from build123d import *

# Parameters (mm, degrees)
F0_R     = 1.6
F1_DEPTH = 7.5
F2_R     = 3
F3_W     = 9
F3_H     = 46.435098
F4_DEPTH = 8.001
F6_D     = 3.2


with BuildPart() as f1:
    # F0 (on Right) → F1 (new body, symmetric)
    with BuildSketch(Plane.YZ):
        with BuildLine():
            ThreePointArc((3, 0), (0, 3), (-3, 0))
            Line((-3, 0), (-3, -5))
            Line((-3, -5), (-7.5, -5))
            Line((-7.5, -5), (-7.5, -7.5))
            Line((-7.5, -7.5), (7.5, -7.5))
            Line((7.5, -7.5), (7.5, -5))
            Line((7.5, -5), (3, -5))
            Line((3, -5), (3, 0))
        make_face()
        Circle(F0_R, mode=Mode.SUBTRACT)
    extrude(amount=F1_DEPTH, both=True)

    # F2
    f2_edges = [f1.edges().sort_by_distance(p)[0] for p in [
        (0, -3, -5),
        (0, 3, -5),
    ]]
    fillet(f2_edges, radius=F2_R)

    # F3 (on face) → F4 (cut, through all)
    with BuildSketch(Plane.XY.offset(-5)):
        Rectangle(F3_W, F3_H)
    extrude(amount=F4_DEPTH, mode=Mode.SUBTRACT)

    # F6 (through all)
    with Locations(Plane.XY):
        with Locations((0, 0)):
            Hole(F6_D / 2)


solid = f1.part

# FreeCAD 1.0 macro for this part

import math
import FreeCAD as App
import Part
import Sketcher

V = App.Vector


def edges_at(feature, points):
    """Names of the edges that pass closest to the given points."""
    edges = feature.Shape.Edges
    near = lambda p: min(range(len(edges)), key=lambda i: edges[i].distToShape(Part.Vertex(*p))[0])
    return sorted({f"Edge{near(p) + 1}" for p in points})


def add_polygon(sketch, points):
    """Adds a closed chain of lines whose ends are joined by coincident constraints."""
    first, n = sketch.GeometryCount, len(points)
    for a, b in zip(points, points[1:] + points[:1]):
        sketch.addGeometry(Part.LineSegment(App.Vector(*a, 0), App.Vector(*b, 0)), False)
    for i in range(n):
        sketch.addConstraint(Sketcher.Constraint("Coincident", first + i, 2, first + (i + 1) % n, 1))

doc = App.newDocument("Part")
body = doc.addObject("PartDesign::Body", "Body")

sketch1 = doc.addObject("Sketcher::SketchObject", "Sketch")
body.addObject(sketch1)
sketch1.AttachmentSupport = (doc.YZ_Plane, [""])
sketch1.MapMode = "FlatFace"
sketch1.addGeometry(Part.ArcOfCircle(Part.Circle(V(0, 0, 0), V(0, 0, 1), 3), math.radians(0), math.radians(180)), False)
sketch1.addGeometry(Part.LineSegment(V(-3, 0, 0), V(-3, -5, 0)), False)
sketch1.addGeometry(Part.LineSegment(V(-3, -5, 0), V(-7.5, -5, 0)), False)
sketch1.addGeometry(Part.LineSegment(V(-7.5, -5, 0), V(-7.5, -7.5, 0)), False)
sketch1.addGeometry(Part.LineSegment(V(-7.5, -7.5, 0), V(7.5, -7.5, 0)), False)
sketch1.addGeometry(Part.LineSegment(V(7.5, -7.5, 0), V(7.5, -5, 0)), False)
sketch1.addGeometry(Part.LineSegment(V(7.5, -5, 0), V(3, -5, 0)), False)
sketch1.addGeometry(Part.LineSegment(V(3, -5, 0), V(3, 0, 0)), False)
sketch1.addGeometry(Part.Circle(V(0, 0, 0), V(0, 0, 1), 1.6), False)
sketch1.addConstraint(Sketcher.Constraint("Tangent", 0, 2, 1, 1))
sketch1.addConstraint(Sketcher.Constraint("Coincident", 1, 2, 2, 1))
sketch1.addConstraint(Sketcher.Constraint("Coincident", 2, 2, 3, 1))
sketch1.addConstraint(Sketcher.Constraint("Coincident", 3, 2, 4, 1))
sketch1.addConstraint(Sketcher.Constraint("Coincident", 4, 2, 5, 1))
sketch1.addConstraint(Sketcher.Constraint("Coincident", 5, 2, 6, 1))
sketch1.addConstraint(Sketcher.Constraint("Coincident", 6, 2, 7, 1))
sketch1.addConstraint(Sketcher.Constraint("Tangent", 7, 2, 0, 1))
sketch1.addConstraint(Sketcher.Constraint("Vertical", 1))
sketch1.addConstraint(Sketcher.Constraint("Horizontal", 2))
sketch1.addConstraint(Sketcher.Constraint("Vertical", 3))
sketch1.addConstraint(Sketcher.Constraint("Horizontal", 4))
sketch1.addConstraint(Sketcher.Constraint("Vertical", 5))
sketch1.addConstraint(Sketcher.Constraint("Horizontal", 6))
sketch1.addConstraint(Sketcher.Constraint("Vertical", 7))
sketch1.addConstraint(Sketcher.Constraint("Coincident", 0, 3, -1, 1))
sketch1.addConstraint(Sketcher.Constraint("Coincident", 8, 3, -1, 1))
sketch1.addConstraint(Sketcher.Constraint("Symmetric", 2, 2, 5, 2, -2))
sketch1.addConstraint(Sketcher.Constraint("Radius", 0, 3.0))
sketch1.addConstraint(Sketcher.Constraint("Diameter", 8, 3.2))
sketch1.addConstraint(Sketcher.Constraint("DistanceX", 4, 1, 4, 2, 15.0))
sketch1.addConstraint(Sketcher.Constraint("DistanceY", 1, 2, 1, 1, 5.0))
sketch1.addConstraint(Sketcher.Constraint("DistanceY", 3, 2, 3, 1, 2.5))
pad1 = doc.addObject("PartDesign::Pad", "Pad")
body.addObject(pad1)
pad1.Profile = sketch1
pad1.Length = 15
pad1.Midplane = True
doc.recompute()

fillet = doc.addObject("PartDesign::Fillet", "Fillet")
body.addObject(fillet)
fillet.Base = (pad1, edges_at(pad1, [(0, -3, -5), (0, 3, -5)]))
fillet.Radius = 3

sketch2 = doc.addObject("Sketcher::SketchObject", "Sketch001")
body.addObject(sketch2)
sketch2.AttachmentSupport = (doc.XY_Plane, [""])
sketch2.MapMode = "FlatFace"
sketch2.AttachmentOffset = App.Placement(V(0, 0, -5), App.Rotation())
add_polygon(sketch2, [(-4.5, 23.217549), (-4.5, -23.217549), (4.5, -23.217549), (4.5, 23.217549)])
sketch2.addConstraint(Sketcher.Constraint("Vertical", 0))
sketch2.addConstraint(Sketcher.Constraint("Horizontal", 1))
sketch2.addConstraint(Sketcher.Constraint("Vertical", 2))
sketch2.addConstraint(Sketcher.Constraint("Horizontal", 3))
sketch2.addConstraint(Sketcher.Constraint("Symmetric", 0, 2, 2, 2, -1, 1))
sketch2.addConstraint(Sketcher.Constraint("DistanceX", 1, 1, 1, 2, 9.0))
sketch2.addConstraint(Sketcher.Constraint("DistanceY", 0, 2, 0, 1, 46.435098))
pocket1 = doc.addObject("PartDesign::Pocket", "Pocket")
body.addObject(pocket1)
pocket1.Profile = sketch2
pocket1.Type = "ThroughAll"
pocket1.Reversed = True

sketch3 = doc.addObject("Sketcher::SketchObject", "Sketch002")
body.addObject(sketch3)
sketch3.AttachmentSupport = (doc.XY_Plane, [""])
sketch3.MapMode = "FlatFace"
sketch3.addGeometry(Part.Circle(V(0, 0, 0), V(0, 0, 1), 1.6), False)
sketch3.addConstraint(Sketcher.Constraint("Coincident", 0, 3, -1, 1))
sketch3.addConstraint(Sketcher.Constraint("Diameter", 0, 3.2))
doc.recompute()
hole = doc.addObject("PartDesign::Hole", "Hole")
body.addObject(hole)
hole.Profile = sketch3
hole.ThreadType = "None"
hole.Diameter = 3.2
hole.DepthType = "ThroughAll"

doc.recompute()
